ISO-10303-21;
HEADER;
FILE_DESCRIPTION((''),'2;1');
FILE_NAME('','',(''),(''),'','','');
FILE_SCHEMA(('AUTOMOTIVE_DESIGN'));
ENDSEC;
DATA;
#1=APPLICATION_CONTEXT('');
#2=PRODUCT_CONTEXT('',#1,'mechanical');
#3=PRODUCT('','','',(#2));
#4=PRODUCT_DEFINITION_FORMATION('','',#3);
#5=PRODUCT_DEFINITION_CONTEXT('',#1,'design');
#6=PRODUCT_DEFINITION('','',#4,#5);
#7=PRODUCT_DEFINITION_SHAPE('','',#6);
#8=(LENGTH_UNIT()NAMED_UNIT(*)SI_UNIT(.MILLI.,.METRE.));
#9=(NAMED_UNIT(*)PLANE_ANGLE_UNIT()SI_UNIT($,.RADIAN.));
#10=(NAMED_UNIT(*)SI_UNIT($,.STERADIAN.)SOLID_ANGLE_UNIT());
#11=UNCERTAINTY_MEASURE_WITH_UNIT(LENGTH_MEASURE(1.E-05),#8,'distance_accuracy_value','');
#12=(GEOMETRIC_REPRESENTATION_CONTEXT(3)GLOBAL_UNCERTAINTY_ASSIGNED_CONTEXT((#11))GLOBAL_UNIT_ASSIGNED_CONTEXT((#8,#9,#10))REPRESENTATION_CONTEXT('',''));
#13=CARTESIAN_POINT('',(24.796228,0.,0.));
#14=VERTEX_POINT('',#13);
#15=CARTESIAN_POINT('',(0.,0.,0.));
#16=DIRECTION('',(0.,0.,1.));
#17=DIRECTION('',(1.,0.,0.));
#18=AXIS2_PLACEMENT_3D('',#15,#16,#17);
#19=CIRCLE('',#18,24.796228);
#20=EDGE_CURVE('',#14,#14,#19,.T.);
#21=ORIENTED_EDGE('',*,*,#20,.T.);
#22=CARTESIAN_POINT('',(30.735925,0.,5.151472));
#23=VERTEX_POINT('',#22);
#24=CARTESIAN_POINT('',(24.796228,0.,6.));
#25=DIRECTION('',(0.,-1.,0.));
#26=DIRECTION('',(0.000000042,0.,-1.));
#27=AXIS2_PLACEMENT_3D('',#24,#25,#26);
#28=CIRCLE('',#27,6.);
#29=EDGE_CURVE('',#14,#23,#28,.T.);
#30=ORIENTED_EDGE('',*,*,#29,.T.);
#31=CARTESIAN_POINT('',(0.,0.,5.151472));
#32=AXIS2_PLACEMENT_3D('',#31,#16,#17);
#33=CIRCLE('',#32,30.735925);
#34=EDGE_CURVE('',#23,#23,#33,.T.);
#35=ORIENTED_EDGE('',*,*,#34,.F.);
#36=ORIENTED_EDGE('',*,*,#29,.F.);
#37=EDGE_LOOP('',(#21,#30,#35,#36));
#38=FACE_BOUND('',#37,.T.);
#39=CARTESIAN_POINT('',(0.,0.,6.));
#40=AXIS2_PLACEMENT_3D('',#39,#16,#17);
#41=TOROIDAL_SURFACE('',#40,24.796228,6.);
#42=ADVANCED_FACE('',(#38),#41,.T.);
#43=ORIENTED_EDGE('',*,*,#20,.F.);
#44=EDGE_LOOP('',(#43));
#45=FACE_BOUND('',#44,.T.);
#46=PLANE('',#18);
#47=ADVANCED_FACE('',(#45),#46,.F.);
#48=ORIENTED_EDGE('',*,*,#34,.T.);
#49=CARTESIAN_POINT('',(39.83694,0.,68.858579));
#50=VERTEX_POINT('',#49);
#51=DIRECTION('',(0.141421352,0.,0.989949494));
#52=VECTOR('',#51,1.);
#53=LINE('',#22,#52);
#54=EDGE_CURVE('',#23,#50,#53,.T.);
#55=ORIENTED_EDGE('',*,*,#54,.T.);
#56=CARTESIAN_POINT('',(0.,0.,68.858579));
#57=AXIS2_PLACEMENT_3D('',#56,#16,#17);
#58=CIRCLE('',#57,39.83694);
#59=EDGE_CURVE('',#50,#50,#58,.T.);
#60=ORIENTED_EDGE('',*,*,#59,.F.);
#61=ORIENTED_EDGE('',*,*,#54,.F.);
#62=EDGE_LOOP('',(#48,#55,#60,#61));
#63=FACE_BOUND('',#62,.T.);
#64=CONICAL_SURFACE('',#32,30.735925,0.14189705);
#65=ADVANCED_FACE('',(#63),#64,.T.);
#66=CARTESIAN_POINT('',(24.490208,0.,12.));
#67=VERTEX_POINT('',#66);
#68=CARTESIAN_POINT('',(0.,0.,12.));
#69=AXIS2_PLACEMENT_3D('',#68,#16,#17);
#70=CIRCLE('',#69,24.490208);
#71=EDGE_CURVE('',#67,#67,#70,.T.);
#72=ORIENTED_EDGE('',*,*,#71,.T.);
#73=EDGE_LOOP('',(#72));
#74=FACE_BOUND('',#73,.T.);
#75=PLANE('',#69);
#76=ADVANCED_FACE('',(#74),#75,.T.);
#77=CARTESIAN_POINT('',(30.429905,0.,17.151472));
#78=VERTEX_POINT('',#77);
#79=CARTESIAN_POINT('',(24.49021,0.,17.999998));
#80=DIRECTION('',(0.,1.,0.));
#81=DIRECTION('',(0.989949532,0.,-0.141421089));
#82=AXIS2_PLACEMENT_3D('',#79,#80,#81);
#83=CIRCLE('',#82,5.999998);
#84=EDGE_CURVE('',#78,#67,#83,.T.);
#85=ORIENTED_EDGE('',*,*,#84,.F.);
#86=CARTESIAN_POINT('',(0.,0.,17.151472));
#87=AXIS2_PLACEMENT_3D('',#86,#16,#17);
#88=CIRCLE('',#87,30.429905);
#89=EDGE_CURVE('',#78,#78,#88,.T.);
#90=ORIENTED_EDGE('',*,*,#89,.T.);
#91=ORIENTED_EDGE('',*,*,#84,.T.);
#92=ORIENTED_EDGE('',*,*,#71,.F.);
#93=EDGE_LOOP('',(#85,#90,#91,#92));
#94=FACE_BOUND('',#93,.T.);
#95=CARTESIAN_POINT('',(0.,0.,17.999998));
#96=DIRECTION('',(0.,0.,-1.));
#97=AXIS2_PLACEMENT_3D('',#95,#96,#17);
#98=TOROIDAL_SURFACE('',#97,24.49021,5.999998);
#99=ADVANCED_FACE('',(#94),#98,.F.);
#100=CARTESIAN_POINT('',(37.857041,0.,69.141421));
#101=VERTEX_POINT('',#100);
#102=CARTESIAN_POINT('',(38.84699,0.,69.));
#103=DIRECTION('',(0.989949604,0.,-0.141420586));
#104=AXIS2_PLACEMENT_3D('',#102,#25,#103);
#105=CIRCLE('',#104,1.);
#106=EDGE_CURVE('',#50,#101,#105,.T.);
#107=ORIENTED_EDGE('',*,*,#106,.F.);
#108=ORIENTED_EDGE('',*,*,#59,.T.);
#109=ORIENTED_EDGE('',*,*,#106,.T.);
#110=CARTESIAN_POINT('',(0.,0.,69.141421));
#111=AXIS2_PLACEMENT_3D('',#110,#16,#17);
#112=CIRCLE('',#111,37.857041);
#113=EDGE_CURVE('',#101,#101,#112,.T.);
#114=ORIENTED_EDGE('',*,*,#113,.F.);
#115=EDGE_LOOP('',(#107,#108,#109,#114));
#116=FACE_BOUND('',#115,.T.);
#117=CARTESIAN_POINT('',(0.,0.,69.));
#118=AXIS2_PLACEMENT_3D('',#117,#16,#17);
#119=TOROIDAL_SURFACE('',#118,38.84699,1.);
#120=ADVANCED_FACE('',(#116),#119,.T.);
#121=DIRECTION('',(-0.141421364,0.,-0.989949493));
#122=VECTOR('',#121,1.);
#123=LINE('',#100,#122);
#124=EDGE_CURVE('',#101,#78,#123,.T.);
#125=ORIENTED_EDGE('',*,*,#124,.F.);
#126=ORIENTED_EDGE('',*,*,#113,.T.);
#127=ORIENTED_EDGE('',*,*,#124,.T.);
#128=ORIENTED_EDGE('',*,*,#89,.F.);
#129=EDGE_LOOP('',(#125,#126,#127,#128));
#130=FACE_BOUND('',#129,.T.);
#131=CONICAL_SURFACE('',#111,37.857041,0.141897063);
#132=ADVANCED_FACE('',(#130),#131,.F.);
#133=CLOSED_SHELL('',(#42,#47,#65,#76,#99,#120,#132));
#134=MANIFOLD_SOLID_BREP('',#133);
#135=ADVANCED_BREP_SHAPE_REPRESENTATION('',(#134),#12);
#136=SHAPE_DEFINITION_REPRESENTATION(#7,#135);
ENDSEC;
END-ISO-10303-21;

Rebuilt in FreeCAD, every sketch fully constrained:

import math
import FreeCAD as App
import Part
import Sketcher

V = App.Vector
Q = App.Units.Quantity

doc = App.newDocument("Part")
body = doc.addObject("PartDesign::Body", "Body")

# Sketch on XZ plane
sketch1 = doc.addObject("Sketcher::SketchObject", "Sketch")
body.addObject(sketch1)
sketch1.AttachmentSupport = (doc.XZ_Plane, [""])
sketch1.MapMode = "FlatFace"
sketch1.addGeometry([
    Part.LineSegment(V(0, 12, 0), V(0, 0, 0)),  # 0
    Part.LineSegment(V(0, 0, 0), V(24.8, 0, 0)),  # 1
    Part.ArcOfCircle(Part.Circle(V(24.8, 6, 0), V(0, 0, 1), 6), math.radians(-90), math.radians(-8)),  # 2
    Part.LineSegment(V(30.7, 5.2, 0), V(39.8, 68.9, 0)),  # 3
    Part.ArcOfCircle(Part.Circle(V(38.8, 69, 0), V(0, 0, 1), 1), math.radians(-8), math.radians(172)),  # 4
    Part.LineSegment(V(37.9, 69.1, 0), V(30.4, 17.2, 0)),  # 5
    Part.ArcOfCircle(Part.Circle(V(24.5, 18, 0), V(0, 0, 1), 6), math.radians(-90), math.radians(-8)),  # 6
    Part.LineSegment(V(24.5, 12, 0), V(0, 12, 0)),  # 7
], False)
sketch1.addConstraint([
    Sketcher.Constraint("Coincident", 0, 2, 1, 1),
    Sketcher.Constraint("Tangent", 1, 2, 2, 1),
    Sketcher.Constraint("Tangent", 2, 2, 3, 1),
    Sketcher.Constraint("Tangent", 3, 2, 4, 1),
    Sketcher.Constraint("Tangent", 4, 2, 5, 1),
    Sketcher.Constraint("Tangent", 5, 2, 6, 2),
    Sketcher.Constraint("Tangent", 6, 1, 7, 1),
    Sketcher.Constraint("Coincident", 7, 2, 0, 1),
    Sketcher.Constraint("Vertical", 0),
    Sketcher.Constraint("Horizontal", 1),
    Sketcher.Constraint("Horizontal", 7),
    Sketcher.Constraint("Coincident", 0, 2, -1, 1),
    Sketcher.Constraint("Parallel", 3, 5),
    Sketcher.Constraint("Radius", 2, Q("6 mm")),
    Sketcher.Constraint("Radius", 4, Q("1 mm")),
    Sketcher.Constraint("Radius", 6, Q("5.999998 mm")),
    Sketcher.Constraint("DistanceY", 0, 2, 0, 1, Q("12 mm")),
    Sketcher.Constraint("DistanceY", -1, 1, 4, 3, Q("69 mm")),
    Sketcher.Constraint("Distance", 5, Q("52.517779 mm")),
    Sketcher.Constraint("DistanceX", 1, 1, 1, 2, Q("24.796228 mm")),
])
revolution = doc.addObject("PartDesign::Revolution", "Revolution")
body.addObject(revolution)
revolution.Profile = sketch1
revolution.ReferenceAxis = (sketch1, ["V_Axis"])
revolution.Angle = 360

doc.recompute()
